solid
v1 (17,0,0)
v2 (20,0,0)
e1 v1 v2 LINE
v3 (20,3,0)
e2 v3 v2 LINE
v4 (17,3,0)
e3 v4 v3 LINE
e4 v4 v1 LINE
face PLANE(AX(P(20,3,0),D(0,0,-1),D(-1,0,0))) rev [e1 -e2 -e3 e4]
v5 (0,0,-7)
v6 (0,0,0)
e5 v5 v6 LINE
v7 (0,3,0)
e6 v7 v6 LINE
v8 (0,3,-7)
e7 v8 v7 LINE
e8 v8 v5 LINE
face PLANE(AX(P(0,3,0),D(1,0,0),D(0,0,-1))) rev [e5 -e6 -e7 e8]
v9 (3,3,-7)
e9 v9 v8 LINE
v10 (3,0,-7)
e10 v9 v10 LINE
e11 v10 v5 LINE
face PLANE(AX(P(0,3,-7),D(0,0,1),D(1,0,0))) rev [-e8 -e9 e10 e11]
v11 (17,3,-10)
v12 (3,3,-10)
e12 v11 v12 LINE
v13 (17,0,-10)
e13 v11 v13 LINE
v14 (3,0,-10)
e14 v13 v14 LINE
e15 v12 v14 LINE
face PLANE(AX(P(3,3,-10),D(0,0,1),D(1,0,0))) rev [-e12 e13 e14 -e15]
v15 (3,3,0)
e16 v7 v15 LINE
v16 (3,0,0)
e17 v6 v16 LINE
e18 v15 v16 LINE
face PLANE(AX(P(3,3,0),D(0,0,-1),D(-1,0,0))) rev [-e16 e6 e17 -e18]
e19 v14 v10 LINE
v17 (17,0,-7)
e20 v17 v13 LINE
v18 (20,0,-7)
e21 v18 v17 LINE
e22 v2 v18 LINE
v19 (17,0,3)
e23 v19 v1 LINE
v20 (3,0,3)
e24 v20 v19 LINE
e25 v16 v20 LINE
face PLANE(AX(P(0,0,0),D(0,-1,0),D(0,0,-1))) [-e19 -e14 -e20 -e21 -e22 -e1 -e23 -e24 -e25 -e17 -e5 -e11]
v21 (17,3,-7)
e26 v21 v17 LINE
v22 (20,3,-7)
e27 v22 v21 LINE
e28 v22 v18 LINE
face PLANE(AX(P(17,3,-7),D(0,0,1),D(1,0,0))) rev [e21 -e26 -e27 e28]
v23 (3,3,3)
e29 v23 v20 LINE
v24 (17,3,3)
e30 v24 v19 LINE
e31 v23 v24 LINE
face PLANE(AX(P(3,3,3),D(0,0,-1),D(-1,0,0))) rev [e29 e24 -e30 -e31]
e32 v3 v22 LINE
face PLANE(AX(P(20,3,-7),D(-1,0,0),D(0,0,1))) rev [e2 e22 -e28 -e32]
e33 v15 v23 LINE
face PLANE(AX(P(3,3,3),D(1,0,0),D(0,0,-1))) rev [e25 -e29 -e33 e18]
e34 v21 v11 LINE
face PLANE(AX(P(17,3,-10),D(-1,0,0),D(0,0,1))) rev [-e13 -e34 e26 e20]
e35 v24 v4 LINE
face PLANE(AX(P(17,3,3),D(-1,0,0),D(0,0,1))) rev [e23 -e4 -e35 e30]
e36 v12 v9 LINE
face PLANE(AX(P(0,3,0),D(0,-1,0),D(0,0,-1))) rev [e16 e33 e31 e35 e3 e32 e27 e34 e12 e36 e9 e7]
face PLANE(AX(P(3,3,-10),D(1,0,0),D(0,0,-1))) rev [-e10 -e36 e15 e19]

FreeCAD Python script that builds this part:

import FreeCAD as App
import Part
import Sketcher

V = App.Vector


def add_polygon(sketch, points):
    """Adds a closed chain of lines whose ends are joined by coincident constraints."""
    first, n = sketch.GeometryCount, len(points)
    for a, b in zip(points, points[1:] + points[:1]):
        sketch.addGeometry(Part.LineSegment(App.Vector(*a, 0), App.Vector(*b, 0)), False)
    for i in range(n):
        sketch.addConstraint(Sketcher.Constraint("Coincident", first + i, 2, first + (i + 1) % n, 1))

doc = App.newDocument("Part")
body = doc.addObject("PartDesign::Body", "Body")

sketch1 = body.newObject("Sketcher::SketchObject", "Sketch")
sketch1.AttachmentSupport = (doc.getObject("XZ_Plane"), [""])
sketch1.MapMode = "FlatFace"
add_polygon(sketch1, [(0, -7), (0, 0), (3, 0), (3, 3), (17, 3), (17, 0), (20, 0), (20, -7), (17, -7), (17, -10), (3, -10), (3, -7)])
sketch1.addConstraint(Sketcher.Constraint("Vertical", 0))
sketch1.addConstraint(Sketcher.Constraint("Horizontal", 1))
sketch1.addConstraint(Sketcher.Constraint("Vertical", 2))
sketch1.addConstraint(Sketcher.Constraint("Horizontal", 3))
sketch1.addConstraint(Sketcher.Constraint("Vertical", 4))
sketch1.addConstraint(Sketcher.Constraint("Horizontal", 5))
sketch1.addConstraint(Sketcher.Constraint("Vertical", 6))
sketch1.addConstraint(Sketcher.Constraint("Horizontal", 7))
sketch1.addConstraint(Sketcher.Constraint("Vertical", 8))
sketch1.addConstraint(Sketcher.Constraint("Horizontal", 9))
sketch1.addConstraint(Sketcher.Constraint("Vertical", 10))
sketch1.addConstraint(Sketcher.Constraint("Horizontal", 11))
sketch1.addConstraint(Sketcher.Constraint("Coincident", 0, 2, -1, 1))
sketch1.addConstraint(Sketcher.Constraint("PointOnObject", 4, 2, -1))
sketch1.addConstraint(Sketcher.Constraint("Horizontal", 7, 2, 10, 2))
sketch1.addConstraint(Sketcher.Constraint("Vertical", 4, 2, 7, 2))
sketch1.addConstraint(Sketcher.Constraint("Vertical", 2, 2, 9, 2))
sketch1.addConstraint(Sketcher.Constraint("Equal", 1, 5))
sketch1.addConstraint(Sketcher.Constraint("Equal", 11, 2))
sketch1.addConstraint(Sketcher.Constraint("Equal", 4, 8))
sketch1.addConstraint(Sketcher.Constraint("DistanceX", 1, 1, 1, 2, 3.0))
sketch1.addConstraint(Sketcher.Constraint("DistanceX", 3, 1, 3, 2, 14.0))
sketch1.addConstraint(Sketcher.Constraint("DistanceY", 0, 1, 0, 2, 7.0))
pad1 = body.newObject("PartDesign::Pad", "Pad")
pad1.Profile = sketch1
pad1.Length = 3
pad1.Reversed = True

doc.recompute()
